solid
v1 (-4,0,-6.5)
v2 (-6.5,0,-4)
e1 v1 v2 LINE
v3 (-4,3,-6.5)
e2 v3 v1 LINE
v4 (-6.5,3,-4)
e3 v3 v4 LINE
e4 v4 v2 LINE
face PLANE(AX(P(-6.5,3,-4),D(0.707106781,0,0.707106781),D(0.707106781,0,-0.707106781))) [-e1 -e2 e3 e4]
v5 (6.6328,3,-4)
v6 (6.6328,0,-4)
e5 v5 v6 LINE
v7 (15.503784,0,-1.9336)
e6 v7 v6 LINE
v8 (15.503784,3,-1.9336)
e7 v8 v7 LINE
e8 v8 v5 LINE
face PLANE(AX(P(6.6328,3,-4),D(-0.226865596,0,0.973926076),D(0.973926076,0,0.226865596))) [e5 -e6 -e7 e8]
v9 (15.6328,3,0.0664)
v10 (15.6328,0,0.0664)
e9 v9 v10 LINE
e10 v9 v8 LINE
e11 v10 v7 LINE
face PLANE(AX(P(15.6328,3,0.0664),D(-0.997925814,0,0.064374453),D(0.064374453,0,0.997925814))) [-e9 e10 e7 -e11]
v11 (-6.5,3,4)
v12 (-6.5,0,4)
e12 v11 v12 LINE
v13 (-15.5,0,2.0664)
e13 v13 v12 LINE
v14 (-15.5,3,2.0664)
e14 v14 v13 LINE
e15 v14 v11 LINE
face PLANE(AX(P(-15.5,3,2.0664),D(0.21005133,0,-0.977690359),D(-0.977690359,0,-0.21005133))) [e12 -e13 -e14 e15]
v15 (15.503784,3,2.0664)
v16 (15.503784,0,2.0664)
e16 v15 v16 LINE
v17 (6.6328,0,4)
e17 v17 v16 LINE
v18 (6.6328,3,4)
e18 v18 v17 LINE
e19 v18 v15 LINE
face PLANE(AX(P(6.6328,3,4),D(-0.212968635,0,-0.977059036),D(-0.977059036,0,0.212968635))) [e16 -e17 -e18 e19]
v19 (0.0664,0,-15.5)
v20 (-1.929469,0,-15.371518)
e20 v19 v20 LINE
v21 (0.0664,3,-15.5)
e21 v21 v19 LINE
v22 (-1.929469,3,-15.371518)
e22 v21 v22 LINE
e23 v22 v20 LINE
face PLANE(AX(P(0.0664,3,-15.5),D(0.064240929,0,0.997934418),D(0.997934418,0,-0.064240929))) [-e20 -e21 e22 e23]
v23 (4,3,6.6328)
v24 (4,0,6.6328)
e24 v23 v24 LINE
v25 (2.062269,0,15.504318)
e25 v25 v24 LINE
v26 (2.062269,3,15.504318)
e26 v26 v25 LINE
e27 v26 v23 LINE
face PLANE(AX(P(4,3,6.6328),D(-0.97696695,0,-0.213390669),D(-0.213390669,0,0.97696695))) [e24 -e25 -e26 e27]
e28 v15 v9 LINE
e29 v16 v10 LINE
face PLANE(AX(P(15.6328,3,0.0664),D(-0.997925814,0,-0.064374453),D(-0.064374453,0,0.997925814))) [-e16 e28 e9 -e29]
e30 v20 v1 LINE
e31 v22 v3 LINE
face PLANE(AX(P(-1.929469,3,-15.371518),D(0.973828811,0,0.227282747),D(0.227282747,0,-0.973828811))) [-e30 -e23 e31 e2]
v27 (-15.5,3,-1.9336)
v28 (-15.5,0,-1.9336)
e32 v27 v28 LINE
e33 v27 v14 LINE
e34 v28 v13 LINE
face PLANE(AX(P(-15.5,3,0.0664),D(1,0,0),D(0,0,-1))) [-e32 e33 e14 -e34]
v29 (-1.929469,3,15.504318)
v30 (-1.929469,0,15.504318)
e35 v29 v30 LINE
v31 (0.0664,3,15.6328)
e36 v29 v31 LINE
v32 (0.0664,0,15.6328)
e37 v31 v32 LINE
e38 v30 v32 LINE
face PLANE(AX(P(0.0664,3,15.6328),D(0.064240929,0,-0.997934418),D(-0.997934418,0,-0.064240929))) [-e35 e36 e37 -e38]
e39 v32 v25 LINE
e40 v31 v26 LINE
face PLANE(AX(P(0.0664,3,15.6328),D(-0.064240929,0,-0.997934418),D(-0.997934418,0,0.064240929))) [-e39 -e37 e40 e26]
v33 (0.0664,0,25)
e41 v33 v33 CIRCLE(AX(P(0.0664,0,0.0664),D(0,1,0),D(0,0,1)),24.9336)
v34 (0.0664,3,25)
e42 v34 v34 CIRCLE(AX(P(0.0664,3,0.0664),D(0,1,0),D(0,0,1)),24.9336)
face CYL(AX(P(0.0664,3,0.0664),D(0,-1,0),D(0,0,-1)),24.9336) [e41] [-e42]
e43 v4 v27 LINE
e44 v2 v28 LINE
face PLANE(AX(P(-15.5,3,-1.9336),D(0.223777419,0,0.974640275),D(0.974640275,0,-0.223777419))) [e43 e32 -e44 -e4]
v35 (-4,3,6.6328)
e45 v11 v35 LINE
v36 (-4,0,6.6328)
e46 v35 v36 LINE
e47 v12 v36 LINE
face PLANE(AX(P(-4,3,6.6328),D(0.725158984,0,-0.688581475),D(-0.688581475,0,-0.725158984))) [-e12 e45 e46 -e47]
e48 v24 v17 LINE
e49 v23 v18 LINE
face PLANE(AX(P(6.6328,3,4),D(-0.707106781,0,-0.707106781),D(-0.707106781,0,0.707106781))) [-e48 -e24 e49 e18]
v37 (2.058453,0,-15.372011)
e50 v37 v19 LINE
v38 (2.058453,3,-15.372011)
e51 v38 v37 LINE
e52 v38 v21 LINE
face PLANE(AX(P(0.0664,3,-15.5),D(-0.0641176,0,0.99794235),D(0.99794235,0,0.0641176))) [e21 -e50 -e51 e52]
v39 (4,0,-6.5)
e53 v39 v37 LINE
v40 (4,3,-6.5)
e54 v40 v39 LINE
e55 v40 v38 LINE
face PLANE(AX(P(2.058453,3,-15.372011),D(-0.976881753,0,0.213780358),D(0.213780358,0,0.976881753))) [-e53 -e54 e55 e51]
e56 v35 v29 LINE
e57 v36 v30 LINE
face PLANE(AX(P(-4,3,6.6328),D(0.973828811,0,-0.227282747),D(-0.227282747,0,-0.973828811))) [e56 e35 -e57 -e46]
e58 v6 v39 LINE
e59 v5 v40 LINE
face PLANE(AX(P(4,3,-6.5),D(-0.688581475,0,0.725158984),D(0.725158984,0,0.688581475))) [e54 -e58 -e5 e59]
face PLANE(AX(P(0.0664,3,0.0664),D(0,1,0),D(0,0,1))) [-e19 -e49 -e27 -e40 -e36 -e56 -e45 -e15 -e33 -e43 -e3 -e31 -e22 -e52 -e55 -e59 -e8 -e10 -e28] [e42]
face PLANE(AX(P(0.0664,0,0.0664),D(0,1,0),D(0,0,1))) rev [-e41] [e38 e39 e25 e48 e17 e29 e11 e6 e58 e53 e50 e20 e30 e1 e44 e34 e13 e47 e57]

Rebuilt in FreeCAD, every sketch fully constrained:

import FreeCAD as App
import Part
import Sketcher
from FreeCAD import Vector
Q = App.Units.Quantity


def add_polygon(sketch, points):
    """Adds a closed chain of lines whose ends are joined by coincident constraints."""
    first, n = sketch.GeometryCount, len(points)
    for a, b in zip(points, points[1:] + points[:1]):
        sketch.addGeometry(Part.LineSegment(App.Vector(*a, 0), App.Vector(*b, 0)), False)
    for i in range(n):
        sketch.addConstraint(Sketcher.Constraint("Coincident", first + i, 2, first + (i + 1) % n, 1))

doc = App.newDocument("Part")
body = doc.addObject("PartDesign::Body", "Body")

# Sketch on XZ plane
sketch1 = body.newObject("Sketcher::SketchObject", "Sketch")
sketch1.AttachmentSupport = (doc.getObject("XZ_Plane"), [""])
sketch1.MapMode = "FlatFace"
sketch1.addGeometry(Part.Circle(Vector(0.1, 0.1, 0), Vector(0, 0, 1), 24.9), False)  # 0
add_polygon(sketch1, [(-15.5, 2.1), (-15.5, -1.9), (-6.5, -4), (-4, -6.5), (-1.9, -15.4), (0.1, -15.5), (2.1, -15.4), (4, -6.5), (6.6, -4), (15.5, -1.9), (15.6, 0.1), (15.5, 2.1), (6.6, 4), (4, 6.6), (2.1, 15.5), (0.1, 15.6), (-1.9, 15.5), (-4, 6.6), (-6.5, 4)])  # lines 1-19
sketch1.addConstraint(Sketcher.Constraint("Vertical", 1))
sketch1.addConstraint(Sketcher.Constraint("Symmetric", 3, 2, 7, 2, -2))
sketch1.addConstraint(Sketcher.Constraint("Symmetric", 13, 2, 17, 2, -2))
sketch1.addConstraint(Sketcher.Constraint("Symmetric", 8, 2, 12, 2, -1))
sketch1.addConstraint(Sketcher.Constraint("Symmetric", 2, 2, 18, 2, -1))
sketch1.addConstraint(Sketcher.Constraint("Parallel", 3, 13))
sketch1.addConstraint(Sketcher.Constraint("Parallel", 5, 15))
sketch1.addConstraint(Sketcher.Constraint("Horizontal", 2, 2, 8, 2))
sketch1.addConstraint(Sketcher.Constraint("Horizontal", 1, 2, 9, 2))
sketch1.addConstraint(Sketcher.Constraint("Horizontal", 0, 3, 10, 2))
sketch1.addConstraint(Sketcher.Constraint("Horizontal", 14, 2, 16, 2))
sketch1.addConstraint(Sketcher.Constraint("Horizontal", 11, 2, 19, 2))
sketch1.addConstraint(Sketcher.Constraint("Vertical", 0, 3, 5, 2))
sketch1.addConstraint(Sketcher.Constraint("Vertical", 9, 2, 11, 2))
sketch1.addConstraint(Sketcher.Constraint("Vertical", 7, 2, 13, 2))
sketch1.addConstraint(Sketcher.Constraint("Vertical", 5, 2, 15, 2))
sketch1.addConstraint(Sketcher.Constraint("Vertical", 4, 2, 16, 2))
sketch1.addConstraint(Sketcher.Constraint("Equal", 10, 11))
sketch1.addConstraint(Sketcher.Constraint("Equal", 5, 15))
sketch1.addConstraint(Sketcher.Constraint("Equal", 4, 17))
sketch1.addConstraint(Sketcher.Constraint("Equal", 8, 18))
sketch1.addConstraint(Sketcher.Constraint("DistanceY", 1, 2, 1, 1, Q("4 mm")))
sketch1.addConstraint(Sketcher.Constraint("Distance", 5, Q("2 mm")))
sketch1.addConstraint(Sketcher.Constraint("DistanceY", 2, 2, -1, 1, Q("4 mm")))
sketch1.addConstraint(Sketcher.Constraint("DistanceX", 3, 2, -1, 1, Q("4 mm")))
sketch1.addConstraint(Sketcher.Constraint("DistanceX", 1, 2, 2, 2, Q("9 mm")))
sketch1.addConstraint(Sketcher.Constraint("DistanceY", 5, 2, 3, 2, Q("9 mm")))
sketch1.addConstraint(Sketcher.Constraint("DistanceX", 8, 2, 10, 2, Q("9 mm")))
sketch1.addConstraint(Sketcher.Constraint("Diameter", 0, Q("49.8672 mm")))
sketch1.addConstraint(Sketcher.Constraint("DistanceX", 1, 2, -1, 1, Q("15.5 mm")))
sketch1.addConstraint(Sketcher.Constraint("DistanceX", -1, 1, 0, 3, Q("0.0664 mm")))
sketch1.addConstraint(Sketcher.Constraint("DistanceY", -1, 1, 0, 3, Q("0.0664 mm")))
sketch1.addConstraint(Sketcher.Constraint("DistanceX", -1, 1, 8, 2, Q("6.6328 mm")))
sketch1.addConstraint(Sketcher.Constraint("Distance", 6, Q("1.99616 mm")))
sketch1.addConstraint(Sketcher.Constraint("Distance", 7, Q("9.08197 mm")))
sketch1.addConstraint(Sketcher.Constraint("Distance", 12, Q("9.079271 mm")))
sketch1.addConstraint(Sketcher.Constraint("DistanceX", 4, 2, -1, 1, Q("1.929469 mm")))
pad1 = body.newObject("PartDesign::Pad", "Pad")
pad1.Profile = sketch1
pad1.Length = 3
pad1.Reversed = True

doc.recompute()
